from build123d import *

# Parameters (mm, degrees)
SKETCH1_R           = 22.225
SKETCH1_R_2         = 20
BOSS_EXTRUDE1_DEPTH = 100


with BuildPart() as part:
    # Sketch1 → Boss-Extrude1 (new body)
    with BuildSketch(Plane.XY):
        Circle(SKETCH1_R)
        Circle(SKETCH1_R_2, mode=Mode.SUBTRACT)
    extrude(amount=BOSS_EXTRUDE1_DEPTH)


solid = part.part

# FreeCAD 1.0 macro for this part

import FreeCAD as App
import Part
import Sketcher

doc = App.newDocument("Part")
body = doc.addObject("PartDesign::Body", "Body")

# Sketch on XY plane
sketch1 = doc.addObject("Sketcher::SketchObject", "Sketch")
body.addObject(sketch1)
sketch1.AttachmentSupport = (doc.XY_Plane, [""])
sketch1.MapMode = "FlatFace"
sketch1.addGeometry([
    Part.Circle(App.Vector(0, 0, 0), App.Vector(0, 0, 1), 22.225),
    Part.Circle(App.Vector(0, 0, 0), App.Vector(0, 0, 1), 20),
], False)
sketch1.addConstraint([
    Sketcher.Constraint("Coincident", 0, 3, -1, 1),
    Sketcher.Constraint("Coincident", 1, 3, -1, 1),
    Sketcher.Constraint("Diameter", 1, 40.0),
    Sketcher.Constraint("Diameter", 0, 44.45),
])
pad1 = doc.addObject("PartDesign::Pad", "Pad")
body.addObject(pad1)
pad1.Profile = sketch1
pad1.Length = 100

doc.recompute()
